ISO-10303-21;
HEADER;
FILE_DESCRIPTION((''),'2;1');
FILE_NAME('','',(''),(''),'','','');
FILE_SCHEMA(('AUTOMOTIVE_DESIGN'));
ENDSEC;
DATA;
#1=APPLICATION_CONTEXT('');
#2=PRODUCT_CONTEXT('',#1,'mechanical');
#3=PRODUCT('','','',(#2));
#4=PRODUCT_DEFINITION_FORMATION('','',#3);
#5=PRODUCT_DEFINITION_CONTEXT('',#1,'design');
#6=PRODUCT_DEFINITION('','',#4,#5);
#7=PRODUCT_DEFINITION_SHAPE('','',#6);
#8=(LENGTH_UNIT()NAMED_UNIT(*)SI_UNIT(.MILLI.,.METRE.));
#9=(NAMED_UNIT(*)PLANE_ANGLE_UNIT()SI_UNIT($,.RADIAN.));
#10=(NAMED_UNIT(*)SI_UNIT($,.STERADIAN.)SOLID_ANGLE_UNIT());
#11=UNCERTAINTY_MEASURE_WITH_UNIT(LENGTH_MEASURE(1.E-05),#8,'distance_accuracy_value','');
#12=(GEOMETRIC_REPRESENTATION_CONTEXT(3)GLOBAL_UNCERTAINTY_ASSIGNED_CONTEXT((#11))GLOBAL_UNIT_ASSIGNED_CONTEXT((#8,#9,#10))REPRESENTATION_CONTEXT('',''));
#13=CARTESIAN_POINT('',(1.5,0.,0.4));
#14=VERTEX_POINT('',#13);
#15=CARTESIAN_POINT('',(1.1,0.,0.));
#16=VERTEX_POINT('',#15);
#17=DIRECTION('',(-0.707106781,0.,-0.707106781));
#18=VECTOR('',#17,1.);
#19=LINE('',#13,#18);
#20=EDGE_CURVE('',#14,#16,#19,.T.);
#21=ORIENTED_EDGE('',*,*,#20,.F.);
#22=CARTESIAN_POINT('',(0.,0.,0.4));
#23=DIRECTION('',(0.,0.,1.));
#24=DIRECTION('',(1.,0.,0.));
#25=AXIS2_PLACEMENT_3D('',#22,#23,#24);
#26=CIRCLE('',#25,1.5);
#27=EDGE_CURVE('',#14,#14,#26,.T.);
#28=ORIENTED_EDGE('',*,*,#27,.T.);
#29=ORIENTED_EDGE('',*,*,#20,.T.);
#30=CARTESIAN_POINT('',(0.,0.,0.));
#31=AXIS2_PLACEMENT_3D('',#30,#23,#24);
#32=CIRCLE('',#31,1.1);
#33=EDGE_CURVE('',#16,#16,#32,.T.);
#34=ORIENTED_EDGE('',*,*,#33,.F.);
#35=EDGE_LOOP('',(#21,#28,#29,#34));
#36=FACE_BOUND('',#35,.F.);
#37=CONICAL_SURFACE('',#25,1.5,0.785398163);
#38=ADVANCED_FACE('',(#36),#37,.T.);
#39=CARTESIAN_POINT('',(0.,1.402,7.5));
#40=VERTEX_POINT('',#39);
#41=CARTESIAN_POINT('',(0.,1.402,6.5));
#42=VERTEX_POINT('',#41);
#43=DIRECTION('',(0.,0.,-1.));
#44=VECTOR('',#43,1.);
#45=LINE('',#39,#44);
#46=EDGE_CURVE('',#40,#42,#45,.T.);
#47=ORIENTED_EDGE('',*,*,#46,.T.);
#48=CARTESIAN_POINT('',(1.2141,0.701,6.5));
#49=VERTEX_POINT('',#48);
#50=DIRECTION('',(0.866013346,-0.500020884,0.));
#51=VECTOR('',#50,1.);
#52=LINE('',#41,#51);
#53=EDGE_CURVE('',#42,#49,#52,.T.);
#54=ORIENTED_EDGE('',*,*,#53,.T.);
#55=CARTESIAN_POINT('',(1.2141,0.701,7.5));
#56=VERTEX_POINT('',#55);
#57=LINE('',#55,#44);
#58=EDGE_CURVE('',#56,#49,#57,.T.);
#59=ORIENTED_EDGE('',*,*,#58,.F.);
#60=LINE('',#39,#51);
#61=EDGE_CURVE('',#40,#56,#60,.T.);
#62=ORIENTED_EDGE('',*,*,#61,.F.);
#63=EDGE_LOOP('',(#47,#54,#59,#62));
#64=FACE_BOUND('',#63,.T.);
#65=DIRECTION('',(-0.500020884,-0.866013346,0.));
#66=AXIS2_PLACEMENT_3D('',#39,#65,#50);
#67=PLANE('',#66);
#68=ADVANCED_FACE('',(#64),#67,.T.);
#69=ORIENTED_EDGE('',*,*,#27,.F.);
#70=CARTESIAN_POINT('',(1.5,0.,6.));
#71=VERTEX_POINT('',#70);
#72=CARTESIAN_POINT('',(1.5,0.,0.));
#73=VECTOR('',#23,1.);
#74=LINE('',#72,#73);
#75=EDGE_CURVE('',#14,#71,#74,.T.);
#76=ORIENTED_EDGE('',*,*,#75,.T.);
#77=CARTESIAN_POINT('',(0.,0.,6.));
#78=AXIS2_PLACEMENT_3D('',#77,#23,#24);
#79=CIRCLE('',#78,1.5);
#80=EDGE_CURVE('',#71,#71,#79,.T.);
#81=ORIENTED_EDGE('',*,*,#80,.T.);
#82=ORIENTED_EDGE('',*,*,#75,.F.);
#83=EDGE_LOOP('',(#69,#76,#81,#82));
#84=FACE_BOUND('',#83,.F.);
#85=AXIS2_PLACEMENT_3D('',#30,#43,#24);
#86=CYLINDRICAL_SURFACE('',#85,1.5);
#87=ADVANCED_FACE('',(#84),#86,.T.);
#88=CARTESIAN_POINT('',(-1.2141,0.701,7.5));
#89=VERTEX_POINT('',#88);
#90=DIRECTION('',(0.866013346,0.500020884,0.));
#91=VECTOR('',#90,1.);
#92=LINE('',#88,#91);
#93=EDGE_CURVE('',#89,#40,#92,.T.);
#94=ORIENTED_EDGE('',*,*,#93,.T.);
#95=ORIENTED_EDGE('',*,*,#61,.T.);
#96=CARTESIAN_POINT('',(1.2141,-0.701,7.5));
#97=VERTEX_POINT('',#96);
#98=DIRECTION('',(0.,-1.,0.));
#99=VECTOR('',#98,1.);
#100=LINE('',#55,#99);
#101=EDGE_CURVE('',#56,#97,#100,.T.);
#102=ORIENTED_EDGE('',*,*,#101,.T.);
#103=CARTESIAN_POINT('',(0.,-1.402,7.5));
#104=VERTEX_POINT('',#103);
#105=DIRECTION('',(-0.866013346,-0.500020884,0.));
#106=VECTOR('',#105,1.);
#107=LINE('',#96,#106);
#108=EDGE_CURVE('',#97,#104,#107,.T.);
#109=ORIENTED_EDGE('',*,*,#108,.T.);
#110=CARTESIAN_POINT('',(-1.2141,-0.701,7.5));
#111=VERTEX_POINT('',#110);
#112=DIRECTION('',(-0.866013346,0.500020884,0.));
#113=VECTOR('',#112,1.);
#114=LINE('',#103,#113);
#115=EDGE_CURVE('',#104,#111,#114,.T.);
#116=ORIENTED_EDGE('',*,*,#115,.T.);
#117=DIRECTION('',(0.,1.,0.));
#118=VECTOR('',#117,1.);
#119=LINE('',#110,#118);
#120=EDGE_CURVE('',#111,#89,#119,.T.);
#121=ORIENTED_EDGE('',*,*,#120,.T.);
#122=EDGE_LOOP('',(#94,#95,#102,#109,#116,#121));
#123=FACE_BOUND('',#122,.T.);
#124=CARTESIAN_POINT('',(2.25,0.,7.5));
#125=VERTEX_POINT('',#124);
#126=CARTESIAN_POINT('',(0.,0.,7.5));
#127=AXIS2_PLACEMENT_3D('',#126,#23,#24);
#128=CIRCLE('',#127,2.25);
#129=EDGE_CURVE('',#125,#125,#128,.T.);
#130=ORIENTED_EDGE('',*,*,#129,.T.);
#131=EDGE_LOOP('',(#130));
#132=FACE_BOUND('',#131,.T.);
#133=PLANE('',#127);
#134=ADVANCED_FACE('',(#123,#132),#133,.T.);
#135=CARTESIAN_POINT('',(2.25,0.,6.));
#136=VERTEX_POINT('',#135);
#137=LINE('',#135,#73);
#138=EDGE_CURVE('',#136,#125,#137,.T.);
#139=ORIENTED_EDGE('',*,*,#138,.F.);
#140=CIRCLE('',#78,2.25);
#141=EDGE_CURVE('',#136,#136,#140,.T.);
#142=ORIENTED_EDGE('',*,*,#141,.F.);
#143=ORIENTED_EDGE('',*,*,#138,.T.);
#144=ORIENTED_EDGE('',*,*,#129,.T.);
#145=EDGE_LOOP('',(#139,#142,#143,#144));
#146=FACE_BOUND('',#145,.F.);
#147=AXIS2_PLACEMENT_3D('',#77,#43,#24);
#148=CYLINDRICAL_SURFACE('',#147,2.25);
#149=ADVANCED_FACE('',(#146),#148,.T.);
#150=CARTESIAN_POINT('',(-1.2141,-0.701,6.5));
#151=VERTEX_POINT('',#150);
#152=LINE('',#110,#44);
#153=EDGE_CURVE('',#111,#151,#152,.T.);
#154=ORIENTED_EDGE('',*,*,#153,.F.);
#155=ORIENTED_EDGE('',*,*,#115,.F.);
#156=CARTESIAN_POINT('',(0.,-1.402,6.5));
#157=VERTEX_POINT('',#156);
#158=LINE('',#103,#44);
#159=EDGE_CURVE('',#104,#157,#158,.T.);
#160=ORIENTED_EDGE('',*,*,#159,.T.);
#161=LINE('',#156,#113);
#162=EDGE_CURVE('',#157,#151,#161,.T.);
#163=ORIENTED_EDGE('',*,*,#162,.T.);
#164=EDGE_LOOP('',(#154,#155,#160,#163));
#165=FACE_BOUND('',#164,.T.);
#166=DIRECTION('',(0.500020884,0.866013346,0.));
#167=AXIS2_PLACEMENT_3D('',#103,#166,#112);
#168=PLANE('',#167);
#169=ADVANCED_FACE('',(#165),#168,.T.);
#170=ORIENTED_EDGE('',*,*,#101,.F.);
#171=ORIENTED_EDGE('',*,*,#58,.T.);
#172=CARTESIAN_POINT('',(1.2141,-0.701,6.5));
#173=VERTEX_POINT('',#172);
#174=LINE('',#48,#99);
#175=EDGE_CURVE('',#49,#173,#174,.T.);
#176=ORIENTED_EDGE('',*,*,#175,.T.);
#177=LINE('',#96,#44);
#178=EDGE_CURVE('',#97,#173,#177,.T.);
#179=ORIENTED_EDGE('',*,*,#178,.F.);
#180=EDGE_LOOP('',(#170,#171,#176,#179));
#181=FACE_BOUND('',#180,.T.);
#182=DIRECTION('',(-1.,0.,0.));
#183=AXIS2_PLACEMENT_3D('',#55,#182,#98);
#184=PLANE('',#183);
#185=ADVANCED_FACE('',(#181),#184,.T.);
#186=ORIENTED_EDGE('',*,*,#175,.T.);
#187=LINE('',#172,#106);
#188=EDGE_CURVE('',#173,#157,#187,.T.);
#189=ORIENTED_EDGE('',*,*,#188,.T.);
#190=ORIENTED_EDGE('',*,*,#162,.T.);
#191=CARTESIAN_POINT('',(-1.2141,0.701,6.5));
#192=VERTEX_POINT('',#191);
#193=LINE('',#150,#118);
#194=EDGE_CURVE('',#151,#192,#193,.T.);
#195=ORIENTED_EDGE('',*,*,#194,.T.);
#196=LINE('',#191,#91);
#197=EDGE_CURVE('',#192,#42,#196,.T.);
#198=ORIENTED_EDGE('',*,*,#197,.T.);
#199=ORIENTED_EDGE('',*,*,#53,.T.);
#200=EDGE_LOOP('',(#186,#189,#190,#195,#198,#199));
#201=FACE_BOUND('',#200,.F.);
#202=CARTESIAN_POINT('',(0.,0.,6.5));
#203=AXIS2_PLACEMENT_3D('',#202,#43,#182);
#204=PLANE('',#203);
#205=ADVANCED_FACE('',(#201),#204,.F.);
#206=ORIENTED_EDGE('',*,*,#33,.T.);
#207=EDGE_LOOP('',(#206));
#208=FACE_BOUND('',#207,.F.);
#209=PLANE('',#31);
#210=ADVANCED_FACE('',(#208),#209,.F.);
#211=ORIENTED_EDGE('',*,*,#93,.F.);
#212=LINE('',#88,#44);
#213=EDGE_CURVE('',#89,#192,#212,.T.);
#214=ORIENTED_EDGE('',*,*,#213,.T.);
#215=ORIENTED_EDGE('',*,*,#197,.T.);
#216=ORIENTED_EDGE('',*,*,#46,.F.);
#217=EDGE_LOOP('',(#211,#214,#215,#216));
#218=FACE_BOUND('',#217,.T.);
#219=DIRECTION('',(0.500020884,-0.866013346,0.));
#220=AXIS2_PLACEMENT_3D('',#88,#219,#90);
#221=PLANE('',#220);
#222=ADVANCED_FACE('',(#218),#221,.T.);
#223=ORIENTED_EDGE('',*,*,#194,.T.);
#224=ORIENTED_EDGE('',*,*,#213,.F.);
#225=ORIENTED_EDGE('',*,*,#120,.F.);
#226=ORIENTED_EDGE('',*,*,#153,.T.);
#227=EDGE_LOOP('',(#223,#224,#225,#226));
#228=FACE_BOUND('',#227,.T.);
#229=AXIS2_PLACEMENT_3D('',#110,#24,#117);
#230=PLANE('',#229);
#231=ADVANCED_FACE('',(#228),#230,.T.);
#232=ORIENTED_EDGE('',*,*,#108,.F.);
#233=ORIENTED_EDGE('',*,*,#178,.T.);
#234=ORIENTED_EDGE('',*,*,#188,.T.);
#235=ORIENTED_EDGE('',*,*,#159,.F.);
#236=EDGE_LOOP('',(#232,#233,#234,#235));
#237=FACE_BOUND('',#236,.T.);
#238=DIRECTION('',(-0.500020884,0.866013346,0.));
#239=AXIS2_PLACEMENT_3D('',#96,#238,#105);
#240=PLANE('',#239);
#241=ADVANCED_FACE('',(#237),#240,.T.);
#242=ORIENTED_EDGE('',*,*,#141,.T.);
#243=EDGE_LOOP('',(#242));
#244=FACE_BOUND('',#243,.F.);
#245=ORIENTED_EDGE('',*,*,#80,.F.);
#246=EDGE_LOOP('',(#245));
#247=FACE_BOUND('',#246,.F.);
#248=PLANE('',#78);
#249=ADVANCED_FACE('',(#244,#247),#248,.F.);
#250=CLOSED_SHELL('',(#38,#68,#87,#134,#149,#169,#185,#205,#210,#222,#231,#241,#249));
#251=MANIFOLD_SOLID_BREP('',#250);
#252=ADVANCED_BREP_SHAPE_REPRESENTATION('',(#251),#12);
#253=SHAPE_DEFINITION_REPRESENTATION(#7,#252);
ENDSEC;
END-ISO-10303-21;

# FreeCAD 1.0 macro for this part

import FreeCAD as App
import Part
import Sketcher

V = App.Vector


def edges_at(feature, points):
    """Names of the edges that pass closest to the given points."""
    edges = feature.Shape.Edges
    near = lambda p: min(range(len(edges)), key=lambda i: edges[i].distToShape(Part.Vertex(*p))[0])
    return sorted({f"Edge{near(p) + 1}" for p in points})


def add_polygon(sketch, points):
    """Adds a closed chain of lines whose ends are joined by coincident constraints."""
    first, n = sketch.GeometryCount, len(points)
    for a, b in zip(points, points[1:] + points[:1]):
        sketch.addGeometry(Part.LineSegment(App.Vector(*a, 0), App.Vector(*b, 0)), False)
    for i in range(n):
        sketch.addConstraint(Sketcher.Constraint("Coincident", first + i, 2, first + (i + 1) % n, 1))

doc = App.newDocument("Part")
body = doc.addObject("PartDesign::Body", "Body")

# Sketch on XY plane
sketch1 = body.newObject("Sketcher::SketchObject", "Sketch")
sketch1.AttachmentSupport = (doc.getObject("XY_Plane"), [""])
sketch1.MapMode = "FlatFace"
sketch1.addGeometry(Part.Circle(V(0, 0, 0), V(0, 0, 1), 1.5), False)
sketch1.addConstraint([
    Sketcher.Constraint("Coincident", 0, 3, -1, 1),
    Sketcher.Constraint("Diameter", 0, 3.0),
])
pad1 = body.newObject("PartDesign::Pad", "Pad")
pad1.Profile = sketch1
pad1.Length = 6

# Sketch on XY plane
sketch2 = body.newObject("Sketcher::SketchObject", "Sketch001")
sketch2.AttachmentSupport = (doc.getObject("XY_Plane"), [""])
sketch2.MapMode = "FlatFace"
sketch2.AttachmentOffset = App.Placement(V(0, 0, 6), App.Rotation())
sketch2.addGeometry(Part.Circle(V(0, 0, 0), V(0, 0, 1), 2.2), False)
sketch2.addConstraint([
    Sketcher.Constraint("Coincident", 0, 3, -1, 1),
    Sketcher.Constraint("Diameter", 0, 4.5),
])
pad2 = body.newObject("PartDesign::Pad", "Pad001")
pad2.Profile = sketch2
pad2.Length = 1.5

# Sketch on XY plane
sketch3 = body.newObject("Sketcher::SketchObject", "Sketch002")
sketch3.AttachmentSupport = (doc.getObject("XY_Plane"), [""])
sketch3.MapMode = "FlatFace"
sketch3.AttachmentOffset = App.Placement(V(0, 0, 7.5), App.Rotation())
add_polygon(sketch3, [(1.2, 0.7), (0, 1.4), (-1.2, 0.7), (-1.2, -0.7), (0, -1.4), (1.2, -0.7)])  # lines 0-5
sketch3.addConstraint([
    Sketcher.Constraint("Vertical", 2),
    Sketcher.Constraint("Vertical", 5),
    Sketcher.Constraint("Symmetric", 0, 2, 3, 2, -1, 1),
    Sketcher.Constraint("Symmetric", 1, 2, 4, 2, -1, 1),
    Sketcher.Constraint("PointOnObject", 0, 2, -2),
    Sketcher.Constraint("Parallel", 0, 3),
    Sketcher.Constraint("Horizontal", 2, 2, 4, 2),
    Sketcher.Constraint("DistanceY", 2, 2, 2, 1, 1.402),
    Sketcher.Constraint("Distance", 0, 1.402),
    Sketcher.Constraint("DistanceY", -1, 1, 0, 2, 1.402),
])
pocket1 = body.newObject("PartDesign::Pocket", "Pocket")
pocket1.Profile = sketch3
pocket1.Length = 1
doc.recompute()

chamfer = body.newObject("PartDesign::Chamfer", "Chamfer")
chamfer.Base = (pocket1, edges_at(pocket1, [(-1.5, 0, 0)]))
chamfer.Size = 0.4

doc.recompute()
